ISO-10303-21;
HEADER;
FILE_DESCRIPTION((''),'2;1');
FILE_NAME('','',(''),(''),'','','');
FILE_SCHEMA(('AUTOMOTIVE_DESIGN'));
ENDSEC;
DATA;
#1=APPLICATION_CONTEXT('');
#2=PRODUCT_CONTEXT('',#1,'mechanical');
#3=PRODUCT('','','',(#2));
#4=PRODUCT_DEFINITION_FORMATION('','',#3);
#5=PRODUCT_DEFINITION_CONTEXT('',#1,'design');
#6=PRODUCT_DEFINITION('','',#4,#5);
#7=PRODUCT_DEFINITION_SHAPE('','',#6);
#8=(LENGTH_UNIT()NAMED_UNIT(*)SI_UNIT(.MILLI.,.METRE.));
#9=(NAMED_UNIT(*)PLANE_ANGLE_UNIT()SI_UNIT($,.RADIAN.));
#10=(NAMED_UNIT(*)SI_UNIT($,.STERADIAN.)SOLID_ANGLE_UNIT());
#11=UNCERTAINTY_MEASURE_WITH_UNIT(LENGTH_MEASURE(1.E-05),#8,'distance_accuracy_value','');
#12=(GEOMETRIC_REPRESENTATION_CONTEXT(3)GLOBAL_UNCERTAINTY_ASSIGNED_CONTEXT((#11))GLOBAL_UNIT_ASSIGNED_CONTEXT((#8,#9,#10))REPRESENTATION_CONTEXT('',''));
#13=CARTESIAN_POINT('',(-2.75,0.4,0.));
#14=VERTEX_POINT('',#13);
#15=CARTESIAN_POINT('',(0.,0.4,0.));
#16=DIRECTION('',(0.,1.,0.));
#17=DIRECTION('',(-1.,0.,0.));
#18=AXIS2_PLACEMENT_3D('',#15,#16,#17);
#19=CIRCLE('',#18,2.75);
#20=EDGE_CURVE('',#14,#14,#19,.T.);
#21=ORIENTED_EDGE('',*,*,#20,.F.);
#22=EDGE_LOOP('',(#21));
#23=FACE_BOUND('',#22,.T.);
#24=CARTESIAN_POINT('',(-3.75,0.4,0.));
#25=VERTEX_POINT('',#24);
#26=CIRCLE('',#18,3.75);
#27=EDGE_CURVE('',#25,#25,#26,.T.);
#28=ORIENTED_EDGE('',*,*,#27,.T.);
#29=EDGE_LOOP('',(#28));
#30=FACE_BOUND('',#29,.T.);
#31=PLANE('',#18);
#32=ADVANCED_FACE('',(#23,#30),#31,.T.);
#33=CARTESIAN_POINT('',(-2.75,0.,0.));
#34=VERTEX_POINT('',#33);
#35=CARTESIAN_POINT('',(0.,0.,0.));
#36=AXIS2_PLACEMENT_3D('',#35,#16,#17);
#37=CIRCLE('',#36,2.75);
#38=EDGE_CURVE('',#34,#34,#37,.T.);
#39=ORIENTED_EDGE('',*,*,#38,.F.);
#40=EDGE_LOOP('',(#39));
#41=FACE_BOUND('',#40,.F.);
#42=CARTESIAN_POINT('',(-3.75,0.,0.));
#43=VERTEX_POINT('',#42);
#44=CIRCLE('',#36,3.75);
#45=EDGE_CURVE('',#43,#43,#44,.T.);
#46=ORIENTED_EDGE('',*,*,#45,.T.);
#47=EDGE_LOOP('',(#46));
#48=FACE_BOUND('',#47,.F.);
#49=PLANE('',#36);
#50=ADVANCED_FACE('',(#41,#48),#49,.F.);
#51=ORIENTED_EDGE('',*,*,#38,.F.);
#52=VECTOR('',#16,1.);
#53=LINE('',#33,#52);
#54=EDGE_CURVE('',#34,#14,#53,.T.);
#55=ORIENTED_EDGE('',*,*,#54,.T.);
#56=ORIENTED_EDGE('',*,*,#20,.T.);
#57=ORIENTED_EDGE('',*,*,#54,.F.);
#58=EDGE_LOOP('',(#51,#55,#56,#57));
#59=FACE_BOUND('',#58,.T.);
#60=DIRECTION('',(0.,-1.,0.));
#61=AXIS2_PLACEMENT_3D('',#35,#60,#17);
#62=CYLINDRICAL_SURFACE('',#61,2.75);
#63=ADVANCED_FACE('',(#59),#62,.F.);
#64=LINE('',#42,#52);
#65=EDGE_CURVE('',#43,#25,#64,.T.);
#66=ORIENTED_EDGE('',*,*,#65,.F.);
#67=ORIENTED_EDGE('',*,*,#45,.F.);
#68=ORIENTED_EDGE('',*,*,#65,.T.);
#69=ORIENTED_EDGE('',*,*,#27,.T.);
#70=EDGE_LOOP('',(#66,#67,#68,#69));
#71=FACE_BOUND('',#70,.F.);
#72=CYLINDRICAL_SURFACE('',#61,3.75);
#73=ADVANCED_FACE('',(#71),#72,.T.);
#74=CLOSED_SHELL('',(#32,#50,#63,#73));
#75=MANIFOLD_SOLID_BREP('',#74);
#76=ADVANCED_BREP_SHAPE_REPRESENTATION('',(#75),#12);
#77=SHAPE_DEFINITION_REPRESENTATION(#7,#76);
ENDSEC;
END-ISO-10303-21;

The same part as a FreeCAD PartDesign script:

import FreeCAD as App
import Part
import Sketcher

V = App.Vector

doc = App.newDocument("Part")
body = doc.addObject("PartDesign::Body", "Body")

# Sketch on XZ plane
sketch1 = body.newObject("Sketcher::SketchObject", "Sketch")
sketch1.AttachmentSupport = (doc.getObject("XZ_Plane"), [""])
sketch1.MapMode = "FlatFace"
sketch1.addGeometry(Part.Circle(V(0, 0, 0), V(0, 0, 1), 3.8), False)
sketch1.addGeometry(Part.Circle(V(0, 0, 0), V(0, 0, 1), 2.8), False)
sketch1.addConstraint(Sketcher.Constraint("Coincident", 0, 3, -1, 1))
sketch1.addConstraint(Sketcher.Constraint("Coincident", 1, 3, -1, 1))
sketch1.addConstraint(Sketcher.Constraint("Diameter", 1, 5.5))
sketch1.addConstraint(Sketcher.Constraint("Diameter", 0, 7.5))
pad1 = body.newObject("PartDesign::Pad", "Pad")
pad1.Profile = sketch1
pad1.Length = 0.4
pad1.Reversed = True

doc.recompute()
